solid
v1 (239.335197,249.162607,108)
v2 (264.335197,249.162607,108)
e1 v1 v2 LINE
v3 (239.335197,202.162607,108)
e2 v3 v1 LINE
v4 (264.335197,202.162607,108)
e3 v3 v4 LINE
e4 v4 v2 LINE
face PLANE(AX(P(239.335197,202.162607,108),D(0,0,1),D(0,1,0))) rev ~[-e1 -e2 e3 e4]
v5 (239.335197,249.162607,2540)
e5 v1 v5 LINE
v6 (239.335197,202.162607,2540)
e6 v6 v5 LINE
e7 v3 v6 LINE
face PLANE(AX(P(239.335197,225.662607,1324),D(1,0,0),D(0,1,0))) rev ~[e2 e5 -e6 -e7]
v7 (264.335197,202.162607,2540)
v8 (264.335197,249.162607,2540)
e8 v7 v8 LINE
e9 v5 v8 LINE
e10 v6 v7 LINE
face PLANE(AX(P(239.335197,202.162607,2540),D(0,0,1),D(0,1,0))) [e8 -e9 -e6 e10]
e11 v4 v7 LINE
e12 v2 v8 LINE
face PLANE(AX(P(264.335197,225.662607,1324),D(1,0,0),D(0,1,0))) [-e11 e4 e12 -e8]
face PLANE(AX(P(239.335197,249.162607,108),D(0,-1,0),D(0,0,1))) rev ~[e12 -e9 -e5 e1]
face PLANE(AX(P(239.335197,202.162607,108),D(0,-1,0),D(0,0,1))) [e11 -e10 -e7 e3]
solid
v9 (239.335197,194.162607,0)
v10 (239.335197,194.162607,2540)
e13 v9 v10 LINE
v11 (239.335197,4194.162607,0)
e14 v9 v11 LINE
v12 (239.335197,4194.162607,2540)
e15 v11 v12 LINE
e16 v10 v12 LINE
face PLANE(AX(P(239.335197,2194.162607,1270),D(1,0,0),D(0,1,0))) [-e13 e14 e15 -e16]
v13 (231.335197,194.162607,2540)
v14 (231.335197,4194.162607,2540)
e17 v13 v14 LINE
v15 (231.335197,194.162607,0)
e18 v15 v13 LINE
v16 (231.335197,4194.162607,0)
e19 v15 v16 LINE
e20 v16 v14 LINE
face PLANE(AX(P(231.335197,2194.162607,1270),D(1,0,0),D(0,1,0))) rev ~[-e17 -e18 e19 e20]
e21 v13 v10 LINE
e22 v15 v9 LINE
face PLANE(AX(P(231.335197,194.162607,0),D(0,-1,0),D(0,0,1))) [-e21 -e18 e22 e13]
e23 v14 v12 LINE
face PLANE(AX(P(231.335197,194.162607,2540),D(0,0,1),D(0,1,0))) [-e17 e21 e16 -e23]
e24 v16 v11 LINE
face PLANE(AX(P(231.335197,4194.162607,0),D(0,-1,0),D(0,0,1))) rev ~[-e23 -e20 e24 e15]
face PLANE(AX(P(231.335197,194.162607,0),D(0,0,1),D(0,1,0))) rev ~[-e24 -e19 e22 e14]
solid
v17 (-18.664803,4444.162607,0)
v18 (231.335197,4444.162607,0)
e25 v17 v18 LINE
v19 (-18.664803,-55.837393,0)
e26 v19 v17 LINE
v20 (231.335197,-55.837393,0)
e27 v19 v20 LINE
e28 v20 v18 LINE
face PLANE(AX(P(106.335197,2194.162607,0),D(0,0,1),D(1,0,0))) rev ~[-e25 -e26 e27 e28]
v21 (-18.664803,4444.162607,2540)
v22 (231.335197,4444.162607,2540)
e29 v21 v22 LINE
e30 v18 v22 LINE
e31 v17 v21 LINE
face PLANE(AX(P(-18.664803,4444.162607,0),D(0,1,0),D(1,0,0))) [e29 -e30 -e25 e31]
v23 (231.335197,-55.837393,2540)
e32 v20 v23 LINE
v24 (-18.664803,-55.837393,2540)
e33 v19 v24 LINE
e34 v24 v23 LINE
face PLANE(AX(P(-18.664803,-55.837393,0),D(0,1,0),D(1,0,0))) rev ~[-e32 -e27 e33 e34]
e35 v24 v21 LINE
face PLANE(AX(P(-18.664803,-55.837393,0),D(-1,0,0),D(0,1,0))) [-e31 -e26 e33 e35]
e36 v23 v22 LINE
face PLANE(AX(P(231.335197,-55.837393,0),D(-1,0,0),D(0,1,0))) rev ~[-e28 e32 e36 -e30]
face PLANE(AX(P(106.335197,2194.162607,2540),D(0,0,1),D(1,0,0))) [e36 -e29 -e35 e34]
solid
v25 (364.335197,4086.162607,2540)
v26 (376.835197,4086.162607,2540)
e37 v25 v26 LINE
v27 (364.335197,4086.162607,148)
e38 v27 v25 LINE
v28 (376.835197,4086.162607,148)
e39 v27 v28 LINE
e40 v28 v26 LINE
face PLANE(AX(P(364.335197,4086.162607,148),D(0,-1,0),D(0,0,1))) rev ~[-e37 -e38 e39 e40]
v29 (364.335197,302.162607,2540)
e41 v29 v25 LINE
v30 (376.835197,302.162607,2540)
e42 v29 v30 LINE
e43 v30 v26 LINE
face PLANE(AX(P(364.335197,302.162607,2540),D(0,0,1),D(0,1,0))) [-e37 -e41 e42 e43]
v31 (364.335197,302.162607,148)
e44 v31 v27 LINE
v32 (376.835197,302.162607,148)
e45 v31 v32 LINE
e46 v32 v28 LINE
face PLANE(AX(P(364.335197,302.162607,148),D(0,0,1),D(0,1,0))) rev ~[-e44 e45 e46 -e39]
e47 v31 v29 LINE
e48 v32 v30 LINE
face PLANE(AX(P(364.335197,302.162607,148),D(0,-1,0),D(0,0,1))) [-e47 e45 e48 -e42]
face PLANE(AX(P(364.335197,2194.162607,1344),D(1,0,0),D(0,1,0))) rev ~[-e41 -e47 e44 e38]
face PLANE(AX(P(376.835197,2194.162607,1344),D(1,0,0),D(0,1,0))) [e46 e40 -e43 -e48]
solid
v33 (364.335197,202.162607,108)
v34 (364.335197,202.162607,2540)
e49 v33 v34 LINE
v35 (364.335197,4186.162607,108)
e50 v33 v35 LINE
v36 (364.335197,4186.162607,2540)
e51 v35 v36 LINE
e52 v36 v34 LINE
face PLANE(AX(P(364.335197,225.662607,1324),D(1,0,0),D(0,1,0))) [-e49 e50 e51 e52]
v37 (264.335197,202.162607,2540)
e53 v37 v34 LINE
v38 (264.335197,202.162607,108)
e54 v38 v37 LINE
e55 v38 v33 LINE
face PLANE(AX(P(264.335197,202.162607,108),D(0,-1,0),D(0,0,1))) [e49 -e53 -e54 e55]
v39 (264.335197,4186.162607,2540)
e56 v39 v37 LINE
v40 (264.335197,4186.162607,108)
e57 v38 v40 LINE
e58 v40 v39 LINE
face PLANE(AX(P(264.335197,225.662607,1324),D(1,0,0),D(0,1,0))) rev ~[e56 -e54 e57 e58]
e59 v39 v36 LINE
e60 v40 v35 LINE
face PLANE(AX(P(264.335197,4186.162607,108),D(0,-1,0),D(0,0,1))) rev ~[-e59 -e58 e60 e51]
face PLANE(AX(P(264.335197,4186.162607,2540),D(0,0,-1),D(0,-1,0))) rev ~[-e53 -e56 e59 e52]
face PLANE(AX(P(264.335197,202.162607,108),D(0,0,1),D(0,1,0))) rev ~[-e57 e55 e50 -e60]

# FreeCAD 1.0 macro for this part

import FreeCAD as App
import Part
import Sketcher
Q = App.Units.Quantity


def add_polygon(sketch, points):
    """Adds a closed chain of lines whose ends are joined by coincident constraints."""
    first, n = sketch.GeometryCount, len(points)
    for a, b in zip(points, points[1:] + points[:1]):
        sketch.addGeometry(Part.LineSegment(App.Vector(*a, 0), App.Vector(*b, 0)), False)
    for i in range(n):
        sketch.addConstraint(Sketcher.Constraint("Coincident", first + i, 2, first + (i + 1) % n, 1))

doc = App.newDocument("Part")
body = doc.addObject("PartDesign::Body", "Body")

# Sketch on XY plane
sketch1 = body.newObject("Sketcher::SketchObject", "Sketch")
sketch1.AttachmentSupport = (doc.getObject("XY_Plane"), [""])
sketch1.MapMode = "FlatFace"
add_polygon(sketch1, [(-19, 4444), (-19, -56), (231, -56), (231, 4444)])  # lines 0-3
sketch1.addConstraint(Sketcher.Constraint("Vertical", 0))
sketch1.addConstraint(Sketcher.Constraint("Horizontal", 1))
sketch1.addConstraint(Sketcher.Constraint("Vertical", 2))
sketch1.addConstraint(Sketcher.Constraint("Horizontal", 3))
sketch1.addConstraint(Sketcher.Constraint("DistanceX", 1, 1, 1, 2, Q("250 mm")))
sketch1.addConstraint(Sketcher.Constraint("DistanceY", 0, 2, 0, 1, Q("4500 mm")))
sketch1.addConstraint(Sketcher.Constraint("DistanceX", 0, 2, -1, 1, Q("18.664803 mm")))
sketch1.addConstraint(Sketcher.Constraint("DistanceY", 0, 2, -1, 1, Q("55.837393 mm")))
pad1 = body.newObject("PartDesign::Pad", "Pad")
pad1.Profile = sketch1
pad1.Length = 2540
body2 = doc.addObject("PartDesign::Body", "Body001")

# Sketch on YZ plane
sketch2 = body2.newObject("Sketcher::SketchObject", "Sketch001")
sketch2.AttachmentSupport = (doc.getObject("YZ_Plane001"), [""])
sketch2.MapMode = "FlatFace"
sketch2.AttachmentOffset = App.Placement(App.Vector(0, 0, 231.335197), App.Rotation())
add_polygon(sketch2, [(194, 2540), (194, 0), (4194, 0), (4194, 2540)])  # lines 0-3
sketch2.addConstraint(Sketcher.Constraint("Vertical", 0))
sketch2.addConstraint(Sketcher.Constraint("Horizontal", 1))
sketch2.addConstraint(Sketcher.Constraint("Vertical", 2))
sketch2.addConstraint(Sketcher.Constraint("Horizontal", 3))
sketch2.addConstraint(Sketcher.Constraint("PointOnObject", 0, 2, -1))
sketch2.addConstraint(Sketcher.Constraint("DistanceX", 1, 1, 1, 2, Q("4000 mm")))
sketch2.addConstraint(Sketcher.Constraint("DistanceY", 0, 2, 0, 1, Q("2540 mm")))
sketch2.addConstraint(Sketcher.Constraint("DistanceX", -1, 1, 0, 2, Q("194.162607 mm")))
pad2 = body2.newObject("PartDesign::Pad", "Pad001")
pad2.Profile = sketch2
pad2.Length = 8
body3 = doc.addObject("PartDesign::Body", "Body002")

# Sketch on YZ plane
sketch3 = body3.newObject("Sketcher::SketchObject", "Sketch002")
sketch3.AttachmentSupport = (doc.getObject("YZ_Plane002"), [""])
sketch3.MapMode = "FlatFace"
sketch3.AttachmentOffset = App.Placement(App.Vector(0, 0, 239.335197), App.Rotation())
add_polygon(sketch3, [(202, 2540), (202, 108), (249, 108), (249, 2540)])  # lines 0-3
sketch3.addConstraint(Sketcher.Constraint("Vertical", 0))
sketch3.addConstraint(Sketcher.Constraint("Horizontal", 1))
sketch3.addConstraint(Sketcher.Constraint("Vertical", 2))
sketch3.addConstraint(Sketcher.Constraint("Horizontal", 3))
sketch3.addConstraint(Sketcher.Constraint("DistanceX", 1, 1, 1, 2, Q("47 mm")))
sketch3.addConstraint(Sketcher.Constraint("DistanceY", 0, 2, 0, 1, Q("2432 mm")))
sketch3.addConstraint(Sketcher.Constraint("DistanceY", -1, 1, 0, 2, Q("108 mm")))
sketch3.addConstraint(Sketcher.Constraint("DistanceX", -1, 1, 0, 2, Q("202.162607 mm")))
pad3 = body3.newObject("PartDesign::Pad", "Pad002")
pad3.Profile = sketch3
pad3.Length = 25
body4 = doc.addObject("PartDesign::Body", "Body003")

# Sketch on YZ plane
sketch4 = body4.newObject("Sketcher::SketchObject", "Sketch003")
sketch4.AttachmentSupport = (doc.getObject("YZ_Plane003"), [""])
sketch4.MapMode = "FlatFace"
sketch4.AttachmentOffset = App.Placement(App.Vector(0, 0, 264.335197), App.Rotation())
add_polygon(sketch4, [(202, 2540), (202, 108), (4186, 108), (4186, 2540)])  # lines 0-3
sketch4.addConstraint(Sketcher.Constraint("Vertical", 0))
sketch4.addConstraint(Sketcher.Constraint("Horizontal", 1))
sketch4.addConstraint(Sketcher.Constraint("Vertical", 2))
sketch4.addConstraint(Sketcher.Constraint("Horizontal", 3))
sketch4.addConstraint(Sketcher.Constraint("DistanceX", 1, 1, 1, 2, Q("3984 mm")))
sketch4.addConstraint(Sketcher.Constraint("DistanceY", 0, 2, 0, 1, Q("2432 mm")))
sketch4.addConstraint(Sketcher.Constraint("DistanceY", -1, 1, 0, 2, Q("108 mm")))
sketch4.addConstraint(Sketcher.Constraint("DistanceX", -1, 1, 0, 2, Q("202.162607 mm")))
pad4 = body4.newObject("PartDesign::Pad", "Pad003")
pad4.Profile = sketch4
pad4.Length = 100
body5 = doc.addObject("PartDesign::Body", "Body004")

# Sketch on YZ plane
sketch5 = body5.newObject("Sketcher::SketchObject", "Sketch004")
sketch5.AttachmentSupport = (doc.getObject("YZ_Plane004"), [""])
sketch5.MapMode = "FlatFace"
sketch5.AttachmentOffset = App.Placement(App.Vector(0, 0, 364.335197), App.Rotation())
add_polygon(sketch5, [(302, 2540), (302, 148), (4086, 148), (4086, 2540)])  # lines 0-3
sketch5.addConstraint(Sketcher.Constraint("Vertical", 0))
sketch5.addConstraint(Sketcher.Constraint("Horizontal", 1))
sketch5.addConstraint(Sketcher.Constraint("Vertical", 2))
sketch5.addConstraint(Sketcher.Constraint("Horizontal", 3))
sketch5.addConstraint(Sketcher.Constraint("DistanceX", 1, 1, 1, 2, Q("3784 mm")))
sketch5.addConstraint(Sketcher.Constraint("DistanceY", 0, 2, 0, 1, Q("2392 mm")))
sketch5.addConstraint(Sketcher.Constraint("DistanceY", -1, 1, 0, 2, Q("148 mm")))
sketch5.addConstraint(Sketcher.Constraint("DistanceX", -1, 1, 0, 2, Q("302.162607 mm")))
pad5 = body5.newObject("PartDesign::Pad", "Pad004")
pad5.Profile = sketch5
pad5.Length = 12.5

doc.recompute()
